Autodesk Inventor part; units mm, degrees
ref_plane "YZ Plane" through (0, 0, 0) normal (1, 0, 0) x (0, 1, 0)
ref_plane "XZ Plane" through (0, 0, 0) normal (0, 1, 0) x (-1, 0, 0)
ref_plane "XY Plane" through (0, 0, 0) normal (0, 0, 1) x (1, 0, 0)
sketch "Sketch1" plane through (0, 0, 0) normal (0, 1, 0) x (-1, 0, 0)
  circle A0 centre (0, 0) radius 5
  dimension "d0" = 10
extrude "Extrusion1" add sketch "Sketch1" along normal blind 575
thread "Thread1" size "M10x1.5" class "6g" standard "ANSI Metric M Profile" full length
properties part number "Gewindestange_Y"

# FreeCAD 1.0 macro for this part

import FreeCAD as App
import Part
import Sketcher
from FreeCAD import Vector
Q = App.Units.Quantity

doc = App.newDocument("Part")
body = doc.addObject("PartDesign::Body", "Body")

# Sketch on XZ plane
sketch1 = body.newObject("Sketcher::SketchObject", "Sketch")
sketch1.AttachmentSupport = (doc.getObject("XZ_Plane"), [""])
sketch1.MapMode = "FlatFace"
sketch1.addGeometry(Part.Circle(Vector(0, 0, 0), Vector(0, 0, 1), 5), False)
sketch1.addConstraint(Sketcher.Constraint("Coincident", 0, 3, -1, 1))
sketch1.addConstraint(Sketcher.Constraint("Diameter", 0, Q("10 mm")))
pad1 = body.newObject("PartDesign::Pad", "Pad")
pad1.Profile = sketch1
pad1.Length = 575
pad1.Reversed = True

doc.recompute()
